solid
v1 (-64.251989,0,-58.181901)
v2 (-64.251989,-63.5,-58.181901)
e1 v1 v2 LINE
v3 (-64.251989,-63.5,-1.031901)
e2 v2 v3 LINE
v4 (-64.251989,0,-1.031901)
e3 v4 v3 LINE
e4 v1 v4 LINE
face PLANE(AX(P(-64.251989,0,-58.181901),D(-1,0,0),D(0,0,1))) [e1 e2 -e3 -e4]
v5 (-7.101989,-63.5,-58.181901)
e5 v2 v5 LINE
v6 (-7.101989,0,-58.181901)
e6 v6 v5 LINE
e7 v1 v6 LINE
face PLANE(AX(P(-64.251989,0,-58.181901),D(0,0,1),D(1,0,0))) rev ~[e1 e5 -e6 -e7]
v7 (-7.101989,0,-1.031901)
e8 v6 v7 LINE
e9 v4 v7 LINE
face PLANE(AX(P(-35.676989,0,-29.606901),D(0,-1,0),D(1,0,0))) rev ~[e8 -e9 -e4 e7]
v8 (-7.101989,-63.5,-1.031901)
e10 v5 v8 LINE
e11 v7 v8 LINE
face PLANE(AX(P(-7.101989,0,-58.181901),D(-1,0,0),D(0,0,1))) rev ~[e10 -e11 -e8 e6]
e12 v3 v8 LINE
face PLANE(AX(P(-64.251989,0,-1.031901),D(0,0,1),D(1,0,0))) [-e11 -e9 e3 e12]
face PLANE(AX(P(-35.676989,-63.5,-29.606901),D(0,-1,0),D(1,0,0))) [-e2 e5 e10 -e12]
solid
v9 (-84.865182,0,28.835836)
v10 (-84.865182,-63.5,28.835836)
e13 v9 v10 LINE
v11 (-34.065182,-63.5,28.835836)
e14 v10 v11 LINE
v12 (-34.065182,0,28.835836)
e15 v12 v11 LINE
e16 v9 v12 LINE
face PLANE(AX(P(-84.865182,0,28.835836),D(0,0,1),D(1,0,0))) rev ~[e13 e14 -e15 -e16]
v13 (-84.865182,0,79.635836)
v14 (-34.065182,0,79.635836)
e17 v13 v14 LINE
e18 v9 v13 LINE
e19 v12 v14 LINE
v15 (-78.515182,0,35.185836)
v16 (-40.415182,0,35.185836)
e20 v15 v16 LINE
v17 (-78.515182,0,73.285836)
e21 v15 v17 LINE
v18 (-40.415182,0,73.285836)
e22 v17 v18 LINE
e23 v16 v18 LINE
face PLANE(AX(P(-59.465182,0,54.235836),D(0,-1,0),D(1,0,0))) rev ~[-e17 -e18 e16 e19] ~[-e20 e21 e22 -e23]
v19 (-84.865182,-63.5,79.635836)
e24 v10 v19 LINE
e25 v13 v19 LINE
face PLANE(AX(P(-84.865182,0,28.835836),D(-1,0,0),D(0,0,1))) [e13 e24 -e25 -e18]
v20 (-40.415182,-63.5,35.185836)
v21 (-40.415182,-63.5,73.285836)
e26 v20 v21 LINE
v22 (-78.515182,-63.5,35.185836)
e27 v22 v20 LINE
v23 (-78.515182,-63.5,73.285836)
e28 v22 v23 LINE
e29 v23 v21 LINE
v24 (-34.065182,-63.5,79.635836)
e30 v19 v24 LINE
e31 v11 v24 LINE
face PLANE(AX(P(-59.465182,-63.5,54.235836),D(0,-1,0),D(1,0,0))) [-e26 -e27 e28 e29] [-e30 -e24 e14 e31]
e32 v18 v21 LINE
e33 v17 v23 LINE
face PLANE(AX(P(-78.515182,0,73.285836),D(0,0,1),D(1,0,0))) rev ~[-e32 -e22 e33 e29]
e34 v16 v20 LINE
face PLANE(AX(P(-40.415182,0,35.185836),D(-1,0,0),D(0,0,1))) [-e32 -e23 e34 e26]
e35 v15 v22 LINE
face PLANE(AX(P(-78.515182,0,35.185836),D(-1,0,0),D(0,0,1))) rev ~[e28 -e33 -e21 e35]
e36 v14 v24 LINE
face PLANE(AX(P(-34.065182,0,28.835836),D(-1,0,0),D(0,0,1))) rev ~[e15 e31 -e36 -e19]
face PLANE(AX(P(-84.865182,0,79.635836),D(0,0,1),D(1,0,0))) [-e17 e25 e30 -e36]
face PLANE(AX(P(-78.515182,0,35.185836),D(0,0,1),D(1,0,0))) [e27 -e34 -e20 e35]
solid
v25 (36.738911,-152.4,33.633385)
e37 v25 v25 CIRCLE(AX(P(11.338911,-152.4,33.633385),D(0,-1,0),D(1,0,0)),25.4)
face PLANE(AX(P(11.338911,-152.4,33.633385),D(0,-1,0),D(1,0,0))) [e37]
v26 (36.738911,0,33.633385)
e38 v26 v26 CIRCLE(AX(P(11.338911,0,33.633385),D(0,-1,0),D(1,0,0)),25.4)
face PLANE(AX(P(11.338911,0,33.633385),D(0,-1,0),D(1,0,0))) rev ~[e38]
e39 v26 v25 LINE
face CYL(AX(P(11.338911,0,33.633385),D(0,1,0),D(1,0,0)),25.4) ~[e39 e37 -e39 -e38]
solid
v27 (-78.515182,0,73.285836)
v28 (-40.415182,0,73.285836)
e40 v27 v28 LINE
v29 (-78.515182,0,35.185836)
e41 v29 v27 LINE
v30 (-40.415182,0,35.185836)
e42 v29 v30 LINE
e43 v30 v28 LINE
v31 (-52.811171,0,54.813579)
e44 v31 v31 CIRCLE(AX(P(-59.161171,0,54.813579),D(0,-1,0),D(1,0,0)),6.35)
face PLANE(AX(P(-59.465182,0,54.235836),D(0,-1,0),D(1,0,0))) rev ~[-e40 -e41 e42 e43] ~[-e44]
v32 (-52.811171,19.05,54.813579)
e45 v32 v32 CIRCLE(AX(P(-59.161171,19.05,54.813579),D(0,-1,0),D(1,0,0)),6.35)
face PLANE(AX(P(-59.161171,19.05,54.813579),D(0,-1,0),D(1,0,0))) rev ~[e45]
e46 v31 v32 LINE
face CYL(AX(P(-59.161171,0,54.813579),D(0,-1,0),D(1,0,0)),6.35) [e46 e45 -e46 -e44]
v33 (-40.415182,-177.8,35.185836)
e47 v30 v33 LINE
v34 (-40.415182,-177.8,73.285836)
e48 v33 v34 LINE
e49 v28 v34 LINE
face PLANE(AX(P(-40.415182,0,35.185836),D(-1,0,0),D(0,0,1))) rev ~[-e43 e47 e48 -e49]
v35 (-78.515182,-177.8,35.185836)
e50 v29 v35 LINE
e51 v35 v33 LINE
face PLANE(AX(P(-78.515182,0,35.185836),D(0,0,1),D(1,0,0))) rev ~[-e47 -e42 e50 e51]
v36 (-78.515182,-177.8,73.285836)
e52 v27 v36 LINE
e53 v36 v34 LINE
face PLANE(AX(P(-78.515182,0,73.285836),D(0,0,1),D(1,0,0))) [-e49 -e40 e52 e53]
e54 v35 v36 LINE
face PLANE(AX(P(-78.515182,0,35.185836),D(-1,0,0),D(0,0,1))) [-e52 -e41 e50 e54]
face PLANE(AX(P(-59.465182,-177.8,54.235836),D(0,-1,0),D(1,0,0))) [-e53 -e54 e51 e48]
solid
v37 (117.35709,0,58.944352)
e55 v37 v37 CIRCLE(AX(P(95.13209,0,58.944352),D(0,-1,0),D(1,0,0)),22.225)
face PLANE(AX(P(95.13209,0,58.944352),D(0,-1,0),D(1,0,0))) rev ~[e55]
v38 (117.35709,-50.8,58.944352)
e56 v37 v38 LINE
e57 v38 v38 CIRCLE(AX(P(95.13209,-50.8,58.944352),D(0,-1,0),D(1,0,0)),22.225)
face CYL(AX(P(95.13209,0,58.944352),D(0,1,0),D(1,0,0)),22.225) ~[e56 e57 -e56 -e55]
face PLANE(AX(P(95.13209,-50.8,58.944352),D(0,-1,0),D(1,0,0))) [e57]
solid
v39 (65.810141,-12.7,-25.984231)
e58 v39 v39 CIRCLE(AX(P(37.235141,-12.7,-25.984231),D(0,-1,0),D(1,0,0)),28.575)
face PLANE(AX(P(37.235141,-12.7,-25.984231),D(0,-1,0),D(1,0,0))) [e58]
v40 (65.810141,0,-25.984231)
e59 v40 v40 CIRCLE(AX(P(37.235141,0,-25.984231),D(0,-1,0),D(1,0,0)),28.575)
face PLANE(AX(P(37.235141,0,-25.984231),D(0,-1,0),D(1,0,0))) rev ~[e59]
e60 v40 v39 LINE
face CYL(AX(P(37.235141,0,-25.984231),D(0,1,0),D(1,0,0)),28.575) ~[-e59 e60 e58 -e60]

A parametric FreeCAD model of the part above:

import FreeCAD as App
import Part
import Sketcher

V = App.Vector
Q = App.Units.Quantity


def add_polygon(sketch, points):
    """Adds a closed chain of lines whose ends are joined by coincident constraints."""
    first, n = sketch.GeometryCount, len(points)
    for a, b in zip(points, points[1:] + points[:1]):
        sketch.addGeometry(Part.LineSegment(App.Vector(*a, 0), App.Vector(*b, 0)), False)
    for i in range(n):
        sketch.addConstraint(Sketcher.Constraint("Coincident", first + i, 2, first + (i + 1) % n, 1))

doc = App.newDocument("Part")
body = doc.addObject("PartDesign::Body", "Body")

sketch1 = body.newObject("Sketcher::SketchObject", "Sketch")
sketch1.AttachmentSupport = (doc.getObject("XZ_Plane"), [""])
sketch1.MapMode = "FlatFace"
sketch1.addGeometry(Part.Circle(V(11.338911, 33.633385, 0), V(0, 0, 1), 25.4), False)
sketch1.addConstraint([
    Sketcher.Constraint("Diameter", 0, Q("2 in")),
    Sketcher.Constraint("DistanceX", -1, 1, 0, 3, 11.338911),
    Sketcher.Constraint("DistanceY", -1, 1, 0, 3, 33.633385),
])
pad1 = body.newObject("PartDesign::Pad", "Pad")
pad1.Profile = sketch1
pad1.Length = Q("6 in")
body2 = doc.addObject("PartDesign::Body", "Body001")

sketch2 = body2.newObject("Sketcher::SketchObject", "Sketch001")
sketch2.AttachmentSupport = (doc.getObject("XZ_Plane001"), [""])
sketch2.MapMode = "FlatFace"
sketch2.addGeometry(Part.Circle(V(37.235141, -25.984231, 0), V(0, 0, 1), 28.575), False)
sketch2.addConstraint([
    Sketcher.Constraint("Diameter", 0, Q("2.25 in")),
    Sketcher.Constraint("DistanceX", -1, 1, 0, 3, 37.235141),
    Sketcher.Constraint("DistanceY", 0, 3, -1, 1, 25.984231),
])
pad2 = body2.newObject("PartDesign::Pad", "Pad001")
pad2.Profile = sketch2
pad2.Length = Q("0.5 in")
body3 = doc.addObject("PartDesign::Body", "Body002")

sketch3 = body3.newObject("Sketcher::SketchObject", "Sketch002")
sketch3.AttachmentSupport = (doc.getObject("XZ_Plane002"), [""])
sketch3.MapMode = "FlatFace"
add_polygon(sketch3, [(-64.251989, -1.031901), (-64.251989, -58.181901), (-7.101989, -58.181901), (-7.101989, -1.031901)])
sketch3.addConstraint([
    Sketcher.Constraint("Vertical", 0),
    Sketcher.Constraint("Horizontal", 1),
    Sketcher.Constraint("Vertical", 2),
    Sketcher.Constraint("Horizontal", 3),
    Sketcher.Constraint("Equal", 3, 0),
    Sketcher.Constraint("DistanceX", 1, 1, 1, 2, Q("2.25 in")),
    Sketcher.Constraint("DistanceY", 0, 2, -1, 1, 58.181901),
    Sketcher.Constraint("DistanceX", 0, 2, -1, 1, 64.251989),
])
pad3 = body3.newObject("PartDesign::Pad", "Pad002")
pad3.Profile = sketch3
pad3.Length = Q("2.5 in")
body4 = doc.addObject("PartDesign::Body", "Body003")

sketch4 = body4.newObject("Sketcher::SketchObject", "Sketch003")
sketch4.AttachmentSupport = (doc.getObject("XZ_Plane003"), [""])
sketch4.MapMode = "FlatFace"
add_polygon(sketch4, [(-78.515182, 73.285836), (-78.515182, 35.185836), (-40.415182, 35.185836), (-40.415182, 73.285836)])
sketch4.addConstraint([
    Sketcher.Constraint("Vertical", 0),
    Sketcher.Constraint("Horizontal", 1),
    Sketcher.Constraint("Vertical", 2),
    Sketcher.Constraint("Horizontal", 3),
    Sketcher.Constraint("Equal", 3, 0),
    Sketcher.Constraint("DistanceX", 1, 1, 1, 2, Q("1.5 in")),
    Sketcher.Constraint("DistanceX", 0, 2, -1, 1, 78.515182),
    Sketcher.Constraint("DistanceY", -1, 1, 0, 2, 35.185836),
])
pad4 = body4.newObject("PartDesign::Pad", "Pad003")
pad4.Profile = sketch4
pad4.Length = Q("7 in")

sketch5 = body4.newObject("Sketcher::SketchObject", "Sketch004")
sketch5.AttachmentSupport = (doc.getObject("XZ_Plane003"), [""])
sketch5.MapMode = "FlatFace"
sketch5.addGeometry(Part.Circle(V(-59.161171, 54.813579, 0), V(0, 0, 1), 6.35), False)
sketch5.addConstraint([
    Sketcher.Constraint("Diameter", 0, Q("0.5 in")),
    Sketcher.Constraint("DistanceX", 0, 3, -1, 1, 59.161171),
    Sketcher.Constraint("DistanceY", -1, 1, 0, 3, 54.813579),
])
pad5 = body4.newObject("PartDesign::Pad", "Pad004")
pad5.Profile = sketch5
pad5.Length = Q("0.75 in")
pad5.Reversed = True
body5 = doc.addObject("PartDesign::Body", "Body004")

sketch6 = body5.newObject("Sketcher::SketchObject", "Sketch005")
sketch6.AttachmentSupport = (doc.getObject("XZ_Plane004"), [""])
sketch6.MapMode = "FlatFace"
add_polygon(sketch6, [(-84.865182, 79.635836), (-84.865182, 28.835836), (-34.065182, 28.835836), (-34.065182, 79.635836)])
add_polygon(sketch6, [(-40.415182, 35.185836), (-78.515182, 35.185836), (-78.515182, 73.285836), (-40.415182, 73.285836)])
sketch6.addConstraint([
    Sketcher.Constraint("Vertical", 0),
    Sketcher.Constraint("Horizontal", 1),
    Sketcher.Constraint("Vertical", 2),
    Sketcher.Constraint("Horizontal", 3),
    Sketcher.Constraint("Horizontal", 4),
    Sketcher.Constraint("Vertical", 5),
    Sketcher.Constraint("Horizontal", 6),
    Sketcher.Constraint("Vertical", 7),
    Sketcher.Constraint("Equal", 3, 0),
    Sketcher.Constraint("Equal", 6, 5),
    Sketcher.Constraint("DistanceX", 1, 1, 1, 2, Q("2 in")),
    Sketcher.Constraint("DistanceX", 4, 2, 4, 1, Q("1.5 in")),
    Sketcher.Constraint("DistanceX", 0, 2, 4, 2, Q("0.25 in")),
    Sketcher.Constraint("DistanceY", 0, 2, 4, 2, Q("0.25 in")),
    Sketcher.Constraint("DistanceX", 4, 2, -1, 1, 78.515182),
    Sketcher.Constraint("DistanceY", -1, 1, 0, 2, 28.835836),
])
pad6 = body5.newObject("PartDesign::Pad", "Pad005")
pad6.Profile = sketch6
pad6.Length = Q("2.5 in")
body6 = doc.addObject("PartDesign::Body", "Body005")

sketch7 = body6.newObject("Sketcher::SketchObject", "Sketch006")
sketch7.AttachmentSupport = (doc.getObject("XZ_Plane005"), [""])
sketch7.MapMode = "FlatFace"
sketch7.addGeometry(Part.Circle(V(95.13209, 58.944352, 0), V(0, 0, 1), 22.225), False)
sketch7.addConstraint([
    Sketcher.Constraint("Diameter", 0, Q("1.75 in")),
    Sketcher.Constraint("DistanceX", -1, 1, 0, 3, 95.13209),
    Sketcher.Constraint("DistanceY", -1, 1, 0, 3, 58.944352),
])
pad7 = body6.newObject("PartDesign::Pad", "Pad006")
pad7.Profile = sketch7
pad7.Length = Q("2 in")

doc.recompute()
